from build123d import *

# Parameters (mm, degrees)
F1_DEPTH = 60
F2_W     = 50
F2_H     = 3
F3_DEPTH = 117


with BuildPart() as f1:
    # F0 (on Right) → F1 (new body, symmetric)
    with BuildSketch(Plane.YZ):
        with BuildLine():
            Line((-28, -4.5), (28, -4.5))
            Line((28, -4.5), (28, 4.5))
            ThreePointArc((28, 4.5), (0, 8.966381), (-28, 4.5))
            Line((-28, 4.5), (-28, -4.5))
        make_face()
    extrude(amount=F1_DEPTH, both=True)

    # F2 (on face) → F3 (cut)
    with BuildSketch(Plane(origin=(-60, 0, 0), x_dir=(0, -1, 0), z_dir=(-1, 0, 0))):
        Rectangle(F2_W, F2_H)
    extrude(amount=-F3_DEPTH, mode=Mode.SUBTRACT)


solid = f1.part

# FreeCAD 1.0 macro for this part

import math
import FreeCAD as App
import Part
import Sketcher
from FreeCAD import Vector
Q = App.Units.Quantity

doc = App.newDocument("Part")
params = doc.addObject("Spreadsheet::Sheet", "Params")
for row, (alias, value) in enumerate([
    ("sketch1_width", "56 mm"),
    ("sketch1_height", "9 mm"),
    ("pad1_length", "120 mm"),
    ("sketch2_width", "50 mm"),
    ("sketch2_height", "3 mm"),
    ("pocket1_length", "117 mm"),
], start=1):
    params.set(f"A{row}", alias)
    params.set(f"B{row}", "=" + value)
    params.setAlias(f"B{row}", alias)

body = doc.addObject("PartDesign::Body", "Body")

# Sketch on YZ plane
sketch1 = doc.addObject("Sketcher::SketchObject", "Sketch")
body.addObject(sketch1)
sketch1.AttachmentSupport = (doc.YZ_Plane, [""])
sketch1.MapMode = "FlatFace"
sketch1.addGeometry([
    Part.LineSegment(Vector(-28, -4, 0), Vector(28, -4, 0)),
    Part.LineSegment(Vector(28, -4, 0), Vector(28, 4, 0)),
    Part.ArcOfCircle(Part.Circle(Vector(0, -81, 0), Vector(0, 0, 1), 90), math.radians(72), math.radians(108)),
    Part.LineSegment(Vector(-28, 4, 0), Vector(-28, -4, 0)),
], False)
sketch1.addConstraint([
    Sketcher.Constraint("Coincident", 0, 2, 1, 1),
    Sketcher.Constraint("Coincident", 1, 2, 2, 1),
    Sketcher.Constraint("Coincident", 2, 2, 3, 1),
    Sketcher.Constraint("Coincident", 3, 2, 0, 1),
    Sketcher.Constraint("Horizontal", 0),
    Sketcher.Constraint("Vertical", 1),
    Sketcher.Constraint("Vertical", 3),
    Sketcher.Constraint("Symmetric", 0, 2, 2, 2, -1, 1),
    Sketcher.Constraint("PointOnObject", 2, 3, -2),
    Sketcher.Constraint("DistanceX", 0, 1, 0, 2, Q("56 mm")),
    Sketcher.Constraint("DistanceY", 1, 1, 1, 2, Q("9 mm")),
    Sketcher.Constraint("Radius", 2, Q("89.999998 mm")),
])
sketch1.setExpression("Constraints[9]", "Params.sketch1_width")
sketch1.setExpression("Constraints[10]", "Params.sketch1_height")
pad1 = doc.addObject("PartDesign::Pad", "Pad")
body.addObject(pad1)
pad1.Profile = sketch1
pad1.setExpression("Length", "Params.pad1_length")
pad1.Midplane = True

# Sketch on YZ plane
sketch2 = doc.addObject("Sketcher::SketchObject", "Sketch001")
body.addObject(sketch2)
sketch2.AttachmentSupport = (doc.YZ_Plane, [""])
sketch2.MapMode = "FlatFace"
sketch2.AttachmentOffset = App.Placement(Vector(0, 0, -60), App.Rotation())
sketch2.addGeometry([
    Part.LineSegment(Vector(25, 1.5, 0), Vector(25, -1.5, 0)),
    Part.LineSegment(Vector(25, -1.5, 0), Vector(-25, -1.5, 0)),
    Part.LineSegment(Vector(-25, -1.5, 0), Vector(-25, 1.5, 0)),
    Part.LineSegment(Vector(-25, 1.5, 0), Vector(25, 1.5, 0)),
], False)
sketch2.addConstraint([
    Sketcher.Constraint("Coincident", 0, 2, 1, 1),
    Sketcher.Constraint("Coincident", 1, 2, 2, 1),
    Sketcher.Constraint("Coincident", 2, 2, 3, 1),
    Sketcher.Constraint("Coincident", 3, 2, 0, 1),
    Sketcher.Constraint("Vertical", 0),
    Sketcher.Constraint("Horizontal", 1),
    Sketcher.Constraint("Vertical", 2),
    Sketcher.Constraint("Horizontal", 3),
    Sketcher.Constraint("Symmetric", 0, 2, 2, 2, -1, 1),
    Sketcher.Constraint("DistanceX", 1, 2, 1, 1, Q("50 mm")),
    Sketcher.Constraint("DistanceY", 0, 2, 0, 1, Q("3 mm")),
])
sketch2.setExpression("Constraints[9]", "Params.sketch2_width")
sketch2.setExpression("Constraints[10]", "Params.sketch2_height")
pocket1 = doc.addObject("PartDesign::Pocket", "Pocket")
body.addObject(pocket1)
pocket1.Profile = sketch2
pocket1.setExpression("Length", "Params.pocket1_length")
pocket1.Reversed = True

doc.recompute()
